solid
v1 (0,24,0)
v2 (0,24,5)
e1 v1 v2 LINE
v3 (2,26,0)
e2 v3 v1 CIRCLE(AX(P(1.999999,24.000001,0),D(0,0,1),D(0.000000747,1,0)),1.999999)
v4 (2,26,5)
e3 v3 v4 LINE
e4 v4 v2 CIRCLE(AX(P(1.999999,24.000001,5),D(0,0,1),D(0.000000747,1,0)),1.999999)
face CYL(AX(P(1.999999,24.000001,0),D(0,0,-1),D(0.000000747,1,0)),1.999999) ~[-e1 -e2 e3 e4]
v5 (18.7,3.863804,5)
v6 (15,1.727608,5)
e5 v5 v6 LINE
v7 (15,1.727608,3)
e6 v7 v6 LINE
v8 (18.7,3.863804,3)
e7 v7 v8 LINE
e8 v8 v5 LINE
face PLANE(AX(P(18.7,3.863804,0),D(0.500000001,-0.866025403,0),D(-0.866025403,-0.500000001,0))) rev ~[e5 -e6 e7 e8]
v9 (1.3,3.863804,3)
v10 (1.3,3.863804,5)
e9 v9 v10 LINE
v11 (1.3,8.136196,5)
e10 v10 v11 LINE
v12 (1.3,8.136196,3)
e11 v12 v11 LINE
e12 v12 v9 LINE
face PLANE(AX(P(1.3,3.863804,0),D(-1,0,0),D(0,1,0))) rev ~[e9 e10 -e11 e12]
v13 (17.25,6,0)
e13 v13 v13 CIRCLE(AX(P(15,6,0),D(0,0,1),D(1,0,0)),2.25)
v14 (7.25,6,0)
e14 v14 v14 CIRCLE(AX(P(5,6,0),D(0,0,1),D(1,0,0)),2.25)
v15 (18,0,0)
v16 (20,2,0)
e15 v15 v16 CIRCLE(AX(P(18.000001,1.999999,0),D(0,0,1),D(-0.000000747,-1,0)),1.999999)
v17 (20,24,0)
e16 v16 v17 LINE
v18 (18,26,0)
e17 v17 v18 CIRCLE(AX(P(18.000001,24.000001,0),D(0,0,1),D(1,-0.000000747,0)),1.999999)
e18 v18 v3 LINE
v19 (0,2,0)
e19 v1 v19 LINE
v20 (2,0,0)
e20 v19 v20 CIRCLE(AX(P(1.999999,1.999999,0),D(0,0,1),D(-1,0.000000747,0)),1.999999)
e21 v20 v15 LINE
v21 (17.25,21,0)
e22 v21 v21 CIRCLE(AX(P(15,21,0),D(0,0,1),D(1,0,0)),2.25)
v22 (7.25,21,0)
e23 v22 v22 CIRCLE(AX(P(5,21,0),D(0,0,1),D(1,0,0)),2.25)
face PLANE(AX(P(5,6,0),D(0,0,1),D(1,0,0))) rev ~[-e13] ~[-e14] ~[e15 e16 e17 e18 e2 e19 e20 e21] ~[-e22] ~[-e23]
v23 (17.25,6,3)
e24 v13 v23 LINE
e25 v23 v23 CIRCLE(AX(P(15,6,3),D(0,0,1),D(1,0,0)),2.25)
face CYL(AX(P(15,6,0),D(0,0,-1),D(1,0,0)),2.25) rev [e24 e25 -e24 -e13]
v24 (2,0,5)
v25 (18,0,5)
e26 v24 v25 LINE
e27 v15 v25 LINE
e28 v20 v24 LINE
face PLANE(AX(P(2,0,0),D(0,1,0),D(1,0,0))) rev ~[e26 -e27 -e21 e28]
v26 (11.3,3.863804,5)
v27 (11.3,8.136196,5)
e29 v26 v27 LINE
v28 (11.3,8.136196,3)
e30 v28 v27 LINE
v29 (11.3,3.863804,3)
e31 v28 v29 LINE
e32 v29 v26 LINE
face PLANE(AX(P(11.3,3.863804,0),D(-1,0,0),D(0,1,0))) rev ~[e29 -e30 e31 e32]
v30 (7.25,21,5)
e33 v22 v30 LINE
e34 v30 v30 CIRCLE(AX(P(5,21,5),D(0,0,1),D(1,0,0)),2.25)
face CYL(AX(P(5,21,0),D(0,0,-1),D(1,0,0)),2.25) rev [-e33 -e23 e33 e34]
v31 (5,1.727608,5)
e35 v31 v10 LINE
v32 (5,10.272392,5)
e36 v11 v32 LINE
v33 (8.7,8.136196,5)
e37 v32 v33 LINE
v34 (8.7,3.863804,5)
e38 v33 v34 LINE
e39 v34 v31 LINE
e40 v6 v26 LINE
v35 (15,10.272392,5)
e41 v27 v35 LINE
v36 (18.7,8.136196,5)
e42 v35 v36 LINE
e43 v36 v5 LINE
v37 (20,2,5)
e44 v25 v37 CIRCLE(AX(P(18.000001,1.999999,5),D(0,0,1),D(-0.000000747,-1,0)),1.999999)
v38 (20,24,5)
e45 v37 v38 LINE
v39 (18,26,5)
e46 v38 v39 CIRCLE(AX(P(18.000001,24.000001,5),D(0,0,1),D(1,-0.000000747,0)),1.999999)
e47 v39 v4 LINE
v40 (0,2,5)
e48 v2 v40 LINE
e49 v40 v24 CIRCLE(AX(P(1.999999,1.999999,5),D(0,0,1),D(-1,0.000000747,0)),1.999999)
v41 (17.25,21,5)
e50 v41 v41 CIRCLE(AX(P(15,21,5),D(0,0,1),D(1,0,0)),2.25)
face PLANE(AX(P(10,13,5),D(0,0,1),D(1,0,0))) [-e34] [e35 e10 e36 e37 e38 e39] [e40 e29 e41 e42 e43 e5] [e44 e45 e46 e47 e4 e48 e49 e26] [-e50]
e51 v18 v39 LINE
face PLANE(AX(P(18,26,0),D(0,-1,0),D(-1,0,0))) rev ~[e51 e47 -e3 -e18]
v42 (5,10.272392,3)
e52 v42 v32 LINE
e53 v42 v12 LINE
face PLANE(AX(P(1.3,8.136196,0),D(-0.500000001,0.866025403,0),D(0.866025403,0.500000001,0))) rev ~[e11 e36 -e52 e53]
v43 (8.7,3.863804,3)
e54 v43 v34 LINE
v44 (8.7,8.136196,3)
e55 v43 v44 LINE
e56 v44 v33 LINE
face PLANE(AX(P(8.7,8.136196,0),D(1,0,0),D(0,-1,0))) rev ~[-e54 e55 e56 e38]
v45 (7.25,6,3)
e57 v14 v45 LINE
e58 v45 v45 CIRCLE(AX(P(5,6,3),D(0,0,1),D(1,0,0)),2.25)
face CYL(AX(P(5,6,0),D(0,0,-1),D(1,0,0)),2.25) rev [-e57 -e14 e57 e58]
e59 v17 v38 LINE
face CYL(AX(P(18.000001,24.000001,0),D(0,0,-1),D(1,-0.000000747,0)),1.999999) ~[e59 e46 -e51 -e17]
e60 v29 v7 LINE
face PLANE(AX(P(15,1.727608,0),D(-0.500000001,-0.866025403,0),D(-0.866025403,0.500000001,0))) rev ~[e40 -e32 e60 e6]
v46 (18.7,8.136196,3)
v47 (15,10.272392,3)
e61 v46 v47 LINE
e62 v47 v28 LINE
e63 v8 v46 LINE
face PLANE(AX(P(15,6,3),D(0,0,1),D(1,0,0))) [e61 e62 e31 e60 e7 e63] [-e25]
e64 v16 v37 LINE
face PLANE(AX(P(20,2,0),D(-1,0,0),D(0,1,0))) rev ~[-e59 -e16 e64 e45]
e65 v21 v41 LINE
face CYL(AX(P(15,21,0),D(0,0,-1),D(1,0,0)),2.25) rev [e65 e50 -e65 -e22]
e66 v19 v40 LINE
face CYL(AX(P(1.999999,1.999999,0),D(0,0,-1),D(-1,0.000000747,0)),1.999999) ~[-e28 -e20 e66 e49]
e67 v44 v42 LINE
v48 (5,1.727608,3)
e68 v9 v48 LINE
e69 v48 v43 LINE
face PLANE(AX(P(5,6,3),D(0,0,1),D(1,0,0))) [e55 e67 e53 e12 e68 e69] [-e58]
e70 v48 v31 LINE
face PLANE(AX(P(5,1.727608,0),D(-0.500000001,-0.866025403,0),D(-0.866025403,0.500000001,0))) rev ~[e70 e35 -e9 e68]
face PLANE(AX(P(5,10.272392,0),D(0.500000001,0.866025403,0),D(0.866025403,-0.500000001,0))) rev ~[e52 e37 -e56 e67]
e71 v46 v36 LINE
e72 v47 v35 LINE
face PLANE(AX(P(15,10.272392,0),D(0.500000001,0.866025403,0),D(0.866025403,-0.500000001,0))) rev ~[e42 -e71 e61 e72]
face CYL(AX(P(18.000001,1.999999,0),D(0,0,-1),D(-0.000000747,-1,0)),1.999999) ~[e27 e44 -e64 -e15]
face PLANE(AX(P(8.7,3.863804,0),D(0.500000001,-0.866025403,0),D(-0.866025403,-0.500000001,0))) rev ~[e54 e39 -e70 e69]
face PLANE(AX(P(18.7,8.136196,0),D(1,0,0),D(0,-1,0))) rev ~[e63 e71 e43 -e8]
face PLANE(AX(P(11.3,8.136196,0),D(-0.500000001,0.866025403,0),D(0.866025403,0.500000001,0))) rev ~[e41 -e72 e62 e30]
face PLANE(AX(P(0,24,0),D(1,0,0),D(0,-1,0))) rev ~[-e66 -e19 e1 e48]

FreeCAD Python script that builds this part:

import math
import FreeCAD as App
import Part
import Sketcher
from FreeCAD import Vector
Q = App.Units.Quantity

doc = App.newDocument("Part")
body = doc.addObject("PartDesign::Body", "Body")

sketch1 = body.newObject("Sketcher::SketchObject", "Sketch")
sketch1.AttachmentSupport = (doc.getObject("XY_Plane"), [""])
sketch1.MapMode = "FlatFace"
sketch1.addGeometry([
    Part.ArcOfCircle(Part.Circle(Vector(2, 2, 0), Vector(0, 0, 1), 2), math.radians(180), math.radians(270)),
    Part.LineSegment(Vector(2, 0, 0), Vector(18, 0, 0)),
    Part.ArcOfCircle(Part.Circle(Vector(18, 2, 0), Vector(0, 0, 1), 2), math.radians(-90), math.radians(0)),
    Part.LineSegment(Vector(20, 2, 0), Vector(20, 24, 0)),
    Part.ArcOfCircle(Part.Circle(Vector(18, 24, 0), Vector(0, 0, 1), 2), math.radians(0), math.radians(90)),
    Part.LineSegment(Vector(18, 26, 0), Vector(2, 26, 0)),
    Part.ArcOfCircle(Part.Circle(Vector(2, 24, 0), Vector(0, 0, 1), 2), math.radians(90), math.radians(180)),
    Part.LineSegment(Vector(0, 24, 0), Vector(0, 2, 0)),
    Part.LineSegment(Vector(8.7, 3.9, 0), Vector(5, 1.7, 0)),
    Part.LineSegment(Vector(5, 1.7, 0), Vector(1.3, 3.9, 0)),
    Part.LineSegment(Vector(1.3, 3.9, 0), Vector(1.3, 8.1, 0)),
    Part.LineSegment(Vector(1.3, 8.1, 0), Vector(5, 10.3, 0)),
    Part.LineSegment(Vector(5, 10.3, 0), Vector(8.7, 8.1, 0)),
    Part.LineSegment(Vector(8.7, 8.1, 0), Vector(8.7, 3.9, 0)),
    Part.LineSegment(Vector(18.7, 3.9, 0), Vector(15, 1.7, 0)),
    Part.LineSegment(Vector(15, 1.7, 0), Vector(11.3, 3.9, 0)),
    Part.LineSegment(Vector(11.3, 3.9, 0), Vector(11.3, 8.1, 0)),
    Part.LineSegment(Vector(11.3, 8.1, 0), Vector(15, 10.3, 0)),
    Part.LineSegment(Vector(15, 10.3, 0), Vector(18.7, 8.1, 0)),
    Part.LineSegment(Vector(18.7, 8.1, 0), Vector(18.7, 3.9, 0)),
    Part.Circle(Vector(5, 21, 0), Vector(0, 0, 1), 2.2),
    Part.Circle(Vector(15, 21, 0), Vector(0, 0, 1), 2.2),
], False)
sketch1.addConstraint([
    Sketcher.Constraint("Tangent", 0, 2, 1, 1),
    Sketcher.Constraint("Tangent", 1, 2, 2, 1),
    Sketcher.Constraint("Tangent", 2, 2, 3, 1),
    Sketcher.Constraint("Tangent", 3, 2, 4, 1),
    Sketcher.Constraint("Tangent", 4, 2, 5, 1),
    Sketcher.Constraint("Tangent", 5, 2, 6, 1),
    Sketcher.Constraint("Tangent", 6, 2, 7, 1),
    Sketcher.Constraint("Tangent", 7, 2, 0, 1),
    Sketcher.Constraint("Coincident", 8, 2, 9, 1),
    Sketcher.Constraint("Coincident", 9, 2, 10, 1),
    Sketcher.Constraint("Coincident", 10, 2, 11, 1),
    Sketcher.Constraint("Coincident", 11, 2, 12, 1),
    Sketcher.Constraint("Coincident", 12, 2, 13, 1),
    Sketcher.Constraint("Coincident", 13, 2, 8, 1),
    Sketcher.Constraint("Coincident", 14, 2, 15, 1),
    Sketcher.Constraint("Coincident", 15, 2, 16, 1),
    Sketcher.Constraint("Coincident", 16, 2, 17, 1),
    Sketcher.Constraint("Coincident", 17, 2, 18, 1),
    Sketcher.Constraint("Coincident", 18, 2, 19, 1),
    Sketcher.Constraint("Coincident", 19, 2, 14, 1),
    Sketcher.Constraint("Horizontal", 1),
    Sketcher.Constraint("Vertical", 3),
    Sketcher.Constraint("Horizontal", 5),
    Sketcher.Constraint("Vertical", 7),
    Sketcher.Constraint("Vertical", 10),
    Sketcher.Constraint("Vertical", 13),
    Sketcher.Constraint("Vertical", 16),
    Sketcher.Constraint("Vertical", 19),
    Sketcher.Constraint("Equal", 0, 2),
    Sketcher.Constraint("Equal", 2, 4),
    Sketcher.Constraint("Equal", 4, 6),
    Sketcher.Constraint("Equal", 20, 21),
    Sketcher.Constraint("PointOnObject", 0, 2, -1),
    Sketcher.Constraint("PointOnObject", 6, 2, -2),
    Sketcher.Constraint("Parallel", 8, 11),
    Sketcher.Constraint("Parallel", 9, 12),
    Sketcher.Constraint("Parallel", 11, 14),
    Sketcher.Constraint("Parallel", 12, 15),
    Sketcher.Constraint("Parallel", 14, 17),
    Sketcher.Constraint("Parallel", 15, 18),
    Sketcher.Constraint("Horizontal", 20, 3, 21, 3),
    Sketcher.Constraint("Horizontal", 10, 2, 12, 2),
    Sketcher.Constraint("Horizontal", 9, 2, 13, 2),
    Sketcher.Constraint("Horizontal", 8, 2, 14, 2),
    Sketcher.Constraint("Horizontal", 13, 2, 15, 2),
    Sketcher.Constraint("Horizontal", 12, 2, 16, 2),
    Sketcher.Constraint("Horizontal", 11, 2, 17, 2),
    Sketcher.Constraint("Horizontal", 16, 2, 18, 2),
    Sketcher.Constraint("Vertical", 20, 3, 8, 2),
    Sketcher.Constraint("Vertical", 8, 2, 11, 2),
    Sketcher.Constraint("Vertical", 21, 3, 14, 2),
    Sketcher.Constraint("Radius", 0, Q("1.999999 mm")),
    Sketcher.Constraint("Diameter", 20, Q("4.5 mm")),
    Sketcher.Constraint("DistanceX", 1, 1, 1, 2, Q("16 mm")),
    Sketcher.Constraint("DistanceY", 3, 1, 3, 2, Q("22 mm")),
    Sketcher.Constraint("Angle", 8, Q("-150 deg")),
    Sketcher.Constraint("DistanceX", -1, 1, 20, 3, Q("5 mm")),
    Sketcher.Constraint("DistanceY", -1, 1, 20, 3, Q("21 mm")),
    Sketcher.Constraint("DistanceX", -1, 1, 21, 3, Q("15 mm")),
    Sketcher.Constraint("DistanceX", -1, 1, 9, 2, Q("1.3 mm")),
    Sketcher.Constraint("DistanceY", 10, 1, 10, 2, Q("4.272392 mm")),
    Sketcher.Constraint("DistanceY", 8, 2, 0, 3, Q("0.272391 mm")),
])
pad1 = body.newObject("PartDesign::Pad", "Pad")
pad1.Profile = sketch1
pad1.Length = 5

sketch2 = body.newObject("Sketcher::SketchObject", "Sketch001")
sketch2.AttachmentSupport = (doc.getObject("XY_Plane"), [""])
sketch2.MapMode = "FlatFace"
sketch2.addGeometry([
    Part.LineSegment(Vector(1.3, 8.1, 0), Vector(1.3, 3.9, 0)),
    Part.LineSegment(Vector(1.3, 3.9, 0), Vector(5, 1.7, 0)),
    Part.LineSegment(Vector(5, 1.7, 0), Vector(8.7, 3.9, 0)),
    Part.LineSegment(Vector(8.7, 3.9, 0), Vector(8.7, 8.1, 0)),
    Part.LineSegment(Vector(8.7, 8.1, 0), Vector(5, 10.3, 0)),
    Part.LineSegment(Vector(5, 10.3, 0), Vector(1.3, 8.1, 0)),
    Part.Circle(Vector(5, 6, 0), Vector(0, 0, 1), 2.2),
    Part.LineSegment(Vector(11.3, 8.1, 0), Vector(11.3, 3.9, 0)),
    Part.LineSegment(Vector(11.3, 3.9, 0), Vector(15, 1.7, 0)),
    Part.LineSegment(Vector(15, 1.7, 0), Vector(18.7, 3.9, 0)),
    Part.LineSegment(Vector(18.7, 3.9, 0), Vector(18.7, 8.1, 0)),
    Part.LineSegment(Vector(18.7, 8.1, 0), Vector(15, 10.3, 0)),
    Part.LineSegment(Vector(15, 10.3, 0), Vector(11.3, 8.1, 0)),
    Part.Circle(Vector(15, 6, 0), Vector(0, 0, 1), 2.2),
], False)
sketch2.addConstraint([
    Sketcher.Constraint("Coincident", 0, 2, 1, 1),
    Sketcher.Constraint("Coincident", 1, 2, 2, 1),
    Sketcher.Constraint("Coincident", 2, 2, 3, 1),
    Sketcher.Constraint("Coincident", 3, 2, 4, 1),
    Sketcher.Constraint("Coincident", 4, 2, 5, 1),
    Sketcher.Constraint("Coincident", 5, 2, 0, 1),
    Sketcher.Constraint("Coincident", 7, 2, 8, 1),
    Sketcher.Constraint("Coincident", 8, 2, 9, 1),
    Sketcher.Constraint("Coincident", 9, 2, 10, 1),
    Sketcher.Constraint("Coincident", 10, 2, 11, 1),
    Sketcher.Constraint("Coincident", 11, 2, 12, 1),
    Sketcher.Constraint("Coincident", 12, 2, 7, 1),
    Sketcher.Constraint("Vertical", 0),
    Sketcher.Constraint("Vertical", 3),
    Sketcher.Constraint("Vertical", 7),
    Sketcher.Constraint("Vertical", 10),
    Sketcher.Constraint("Equal", 6, 13),
    Sketcher.Constraint("Parallel", 1, 4),
    Sketcher.Constraint("Parallel", 2, 5),
    Sketcher.Constraint("Parallel", 4, 8),
    Sketcher.Constraint("Parallel", 5, 9),
    Sketcher.Constraint("Parallel", 8, 11),
    Sketcher.Constraint("Parallel", 9, 12),
    Sketcher.Constraint("Horizontal", 6, 3, 13, 3),
    Sketcher.Constraint("Horizontal", 0, 2, 2, 2),
    Sketcher.Constraint("Horizontal", 3, 2, 5, 2),
    Sketcher.Constraint("Horizontal", 2, 2, 7, 2),
    Sketcher.Constraint("Horizontal", 1, 2, 8, 2),
    Sketcher.Constraint("Horizontal", 7, 2, 9, 2),
    Sketcher.Constraint("Horizontal", 5, 2, 10, 2),
    Sketcher.Constraint("Horizontal", 4, 2, 11, 2),
    Sketcher.Constraint("Vertical", 6, 3, 1, 2),
    Sketcher.Constraint("Vertical", 1, 2, 4, 2),
    Sketcher.Constraint("Vertical", 13, 3, 8, 2),
    Sketcher.Constraint("Diameter", 6, Q("4.5 mm")),
    Sketcher.Constraint("Angle", 1, Q("-30 deg")),
    Sketcher.Constraint("DistanceX", -1, 1, 6, 3, Q("5 mm")),
    Sketcher.Constraint("DistanceY", -1, 1, 6, 3, Q("6 mm")),
    Sketcher.Constraint("DistanceX", -1, 1, 13, 3, Q("15 mm")),
    Sketcher.Constraint("DistanceX", -1, 1, 0, 2, Q("1.3 mm")),
    Sketcher.Constraint("DistanceY", 0, 2, 0, 1, Q("4.272392 mm")),
    Sketcher.Constraint("DistanceY", -1, 1, 0, 2, Q("3.863804 mm")),
])
pad2 = body.newObject("PartDesign::Pad", "Pad001")
pad2.Profile = sketch2
pad2.Length = 3

doc.recompute()
